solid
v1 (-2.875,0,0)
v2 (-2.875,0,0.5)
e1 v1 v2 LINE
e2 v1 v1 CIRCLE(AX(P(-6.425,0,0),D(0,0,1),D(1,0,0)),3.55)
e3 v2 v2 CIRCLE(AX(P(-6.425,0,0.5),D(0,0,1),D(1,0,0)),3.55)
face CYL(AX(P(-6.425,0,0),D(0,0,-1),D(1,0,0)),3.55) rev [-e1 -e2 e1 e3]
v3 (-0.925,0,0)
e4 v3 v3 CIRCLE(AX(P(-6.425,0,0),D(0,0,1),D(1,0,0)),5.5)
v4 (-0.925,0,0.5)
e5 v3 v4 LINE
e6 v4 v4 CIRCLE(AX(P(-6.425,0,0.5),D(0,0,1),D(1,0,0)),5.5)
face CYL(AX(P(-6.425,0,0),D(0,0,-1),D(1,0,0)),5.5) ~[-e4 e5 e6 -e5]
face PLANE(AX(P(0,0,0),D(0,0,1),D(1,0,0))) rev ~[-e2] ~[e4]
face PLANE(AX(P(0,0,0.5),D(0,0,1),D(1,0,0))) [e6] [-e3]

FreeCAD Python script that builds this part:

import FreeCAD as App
import Part
import Sketcher
from FreeCAD import Vector

doc = App.newDocument("Part")
body = doc.addObject("PartDesign::Body", "Body")

# Sketch on XY plane
sketch1 = body.newObject("Sketcher::SketchObject", "Sketch")
sketch1.AttachmentSupport = (doc.getObject("XY_Plane"), [""])
sketch1.MapMode = "FlatFace"
sketch1.addGeometry([
    Part.Circle(Vector(-6.4, 0, 0), Vector(0, 0, 1), 5.5),
    Part.Circle(Vector(-6.4, 0, 0), Vector(0, 0, 1), 3.5),
], False)
sketch1.addConstraint([
    Sketcher.Constraint("Coincident", 1, 3, 0, 3),
    Sketcher.Constraint("PointOnObject", 0, 3, -1),
    Sketcher.Constraint("Diameter", 0, 11.0),
    Sketcher.Constraint("Diameter", 1, 7.1),
    Sketcher.Constraint("DistanceX", 0, 3, -1, 1, 6.425),
])
pad1 = body.newObject("PartDesign::Pad", "Pad")
pad1.Profile = sketch1
pad1.Length = 0.5

doc.recompute()
